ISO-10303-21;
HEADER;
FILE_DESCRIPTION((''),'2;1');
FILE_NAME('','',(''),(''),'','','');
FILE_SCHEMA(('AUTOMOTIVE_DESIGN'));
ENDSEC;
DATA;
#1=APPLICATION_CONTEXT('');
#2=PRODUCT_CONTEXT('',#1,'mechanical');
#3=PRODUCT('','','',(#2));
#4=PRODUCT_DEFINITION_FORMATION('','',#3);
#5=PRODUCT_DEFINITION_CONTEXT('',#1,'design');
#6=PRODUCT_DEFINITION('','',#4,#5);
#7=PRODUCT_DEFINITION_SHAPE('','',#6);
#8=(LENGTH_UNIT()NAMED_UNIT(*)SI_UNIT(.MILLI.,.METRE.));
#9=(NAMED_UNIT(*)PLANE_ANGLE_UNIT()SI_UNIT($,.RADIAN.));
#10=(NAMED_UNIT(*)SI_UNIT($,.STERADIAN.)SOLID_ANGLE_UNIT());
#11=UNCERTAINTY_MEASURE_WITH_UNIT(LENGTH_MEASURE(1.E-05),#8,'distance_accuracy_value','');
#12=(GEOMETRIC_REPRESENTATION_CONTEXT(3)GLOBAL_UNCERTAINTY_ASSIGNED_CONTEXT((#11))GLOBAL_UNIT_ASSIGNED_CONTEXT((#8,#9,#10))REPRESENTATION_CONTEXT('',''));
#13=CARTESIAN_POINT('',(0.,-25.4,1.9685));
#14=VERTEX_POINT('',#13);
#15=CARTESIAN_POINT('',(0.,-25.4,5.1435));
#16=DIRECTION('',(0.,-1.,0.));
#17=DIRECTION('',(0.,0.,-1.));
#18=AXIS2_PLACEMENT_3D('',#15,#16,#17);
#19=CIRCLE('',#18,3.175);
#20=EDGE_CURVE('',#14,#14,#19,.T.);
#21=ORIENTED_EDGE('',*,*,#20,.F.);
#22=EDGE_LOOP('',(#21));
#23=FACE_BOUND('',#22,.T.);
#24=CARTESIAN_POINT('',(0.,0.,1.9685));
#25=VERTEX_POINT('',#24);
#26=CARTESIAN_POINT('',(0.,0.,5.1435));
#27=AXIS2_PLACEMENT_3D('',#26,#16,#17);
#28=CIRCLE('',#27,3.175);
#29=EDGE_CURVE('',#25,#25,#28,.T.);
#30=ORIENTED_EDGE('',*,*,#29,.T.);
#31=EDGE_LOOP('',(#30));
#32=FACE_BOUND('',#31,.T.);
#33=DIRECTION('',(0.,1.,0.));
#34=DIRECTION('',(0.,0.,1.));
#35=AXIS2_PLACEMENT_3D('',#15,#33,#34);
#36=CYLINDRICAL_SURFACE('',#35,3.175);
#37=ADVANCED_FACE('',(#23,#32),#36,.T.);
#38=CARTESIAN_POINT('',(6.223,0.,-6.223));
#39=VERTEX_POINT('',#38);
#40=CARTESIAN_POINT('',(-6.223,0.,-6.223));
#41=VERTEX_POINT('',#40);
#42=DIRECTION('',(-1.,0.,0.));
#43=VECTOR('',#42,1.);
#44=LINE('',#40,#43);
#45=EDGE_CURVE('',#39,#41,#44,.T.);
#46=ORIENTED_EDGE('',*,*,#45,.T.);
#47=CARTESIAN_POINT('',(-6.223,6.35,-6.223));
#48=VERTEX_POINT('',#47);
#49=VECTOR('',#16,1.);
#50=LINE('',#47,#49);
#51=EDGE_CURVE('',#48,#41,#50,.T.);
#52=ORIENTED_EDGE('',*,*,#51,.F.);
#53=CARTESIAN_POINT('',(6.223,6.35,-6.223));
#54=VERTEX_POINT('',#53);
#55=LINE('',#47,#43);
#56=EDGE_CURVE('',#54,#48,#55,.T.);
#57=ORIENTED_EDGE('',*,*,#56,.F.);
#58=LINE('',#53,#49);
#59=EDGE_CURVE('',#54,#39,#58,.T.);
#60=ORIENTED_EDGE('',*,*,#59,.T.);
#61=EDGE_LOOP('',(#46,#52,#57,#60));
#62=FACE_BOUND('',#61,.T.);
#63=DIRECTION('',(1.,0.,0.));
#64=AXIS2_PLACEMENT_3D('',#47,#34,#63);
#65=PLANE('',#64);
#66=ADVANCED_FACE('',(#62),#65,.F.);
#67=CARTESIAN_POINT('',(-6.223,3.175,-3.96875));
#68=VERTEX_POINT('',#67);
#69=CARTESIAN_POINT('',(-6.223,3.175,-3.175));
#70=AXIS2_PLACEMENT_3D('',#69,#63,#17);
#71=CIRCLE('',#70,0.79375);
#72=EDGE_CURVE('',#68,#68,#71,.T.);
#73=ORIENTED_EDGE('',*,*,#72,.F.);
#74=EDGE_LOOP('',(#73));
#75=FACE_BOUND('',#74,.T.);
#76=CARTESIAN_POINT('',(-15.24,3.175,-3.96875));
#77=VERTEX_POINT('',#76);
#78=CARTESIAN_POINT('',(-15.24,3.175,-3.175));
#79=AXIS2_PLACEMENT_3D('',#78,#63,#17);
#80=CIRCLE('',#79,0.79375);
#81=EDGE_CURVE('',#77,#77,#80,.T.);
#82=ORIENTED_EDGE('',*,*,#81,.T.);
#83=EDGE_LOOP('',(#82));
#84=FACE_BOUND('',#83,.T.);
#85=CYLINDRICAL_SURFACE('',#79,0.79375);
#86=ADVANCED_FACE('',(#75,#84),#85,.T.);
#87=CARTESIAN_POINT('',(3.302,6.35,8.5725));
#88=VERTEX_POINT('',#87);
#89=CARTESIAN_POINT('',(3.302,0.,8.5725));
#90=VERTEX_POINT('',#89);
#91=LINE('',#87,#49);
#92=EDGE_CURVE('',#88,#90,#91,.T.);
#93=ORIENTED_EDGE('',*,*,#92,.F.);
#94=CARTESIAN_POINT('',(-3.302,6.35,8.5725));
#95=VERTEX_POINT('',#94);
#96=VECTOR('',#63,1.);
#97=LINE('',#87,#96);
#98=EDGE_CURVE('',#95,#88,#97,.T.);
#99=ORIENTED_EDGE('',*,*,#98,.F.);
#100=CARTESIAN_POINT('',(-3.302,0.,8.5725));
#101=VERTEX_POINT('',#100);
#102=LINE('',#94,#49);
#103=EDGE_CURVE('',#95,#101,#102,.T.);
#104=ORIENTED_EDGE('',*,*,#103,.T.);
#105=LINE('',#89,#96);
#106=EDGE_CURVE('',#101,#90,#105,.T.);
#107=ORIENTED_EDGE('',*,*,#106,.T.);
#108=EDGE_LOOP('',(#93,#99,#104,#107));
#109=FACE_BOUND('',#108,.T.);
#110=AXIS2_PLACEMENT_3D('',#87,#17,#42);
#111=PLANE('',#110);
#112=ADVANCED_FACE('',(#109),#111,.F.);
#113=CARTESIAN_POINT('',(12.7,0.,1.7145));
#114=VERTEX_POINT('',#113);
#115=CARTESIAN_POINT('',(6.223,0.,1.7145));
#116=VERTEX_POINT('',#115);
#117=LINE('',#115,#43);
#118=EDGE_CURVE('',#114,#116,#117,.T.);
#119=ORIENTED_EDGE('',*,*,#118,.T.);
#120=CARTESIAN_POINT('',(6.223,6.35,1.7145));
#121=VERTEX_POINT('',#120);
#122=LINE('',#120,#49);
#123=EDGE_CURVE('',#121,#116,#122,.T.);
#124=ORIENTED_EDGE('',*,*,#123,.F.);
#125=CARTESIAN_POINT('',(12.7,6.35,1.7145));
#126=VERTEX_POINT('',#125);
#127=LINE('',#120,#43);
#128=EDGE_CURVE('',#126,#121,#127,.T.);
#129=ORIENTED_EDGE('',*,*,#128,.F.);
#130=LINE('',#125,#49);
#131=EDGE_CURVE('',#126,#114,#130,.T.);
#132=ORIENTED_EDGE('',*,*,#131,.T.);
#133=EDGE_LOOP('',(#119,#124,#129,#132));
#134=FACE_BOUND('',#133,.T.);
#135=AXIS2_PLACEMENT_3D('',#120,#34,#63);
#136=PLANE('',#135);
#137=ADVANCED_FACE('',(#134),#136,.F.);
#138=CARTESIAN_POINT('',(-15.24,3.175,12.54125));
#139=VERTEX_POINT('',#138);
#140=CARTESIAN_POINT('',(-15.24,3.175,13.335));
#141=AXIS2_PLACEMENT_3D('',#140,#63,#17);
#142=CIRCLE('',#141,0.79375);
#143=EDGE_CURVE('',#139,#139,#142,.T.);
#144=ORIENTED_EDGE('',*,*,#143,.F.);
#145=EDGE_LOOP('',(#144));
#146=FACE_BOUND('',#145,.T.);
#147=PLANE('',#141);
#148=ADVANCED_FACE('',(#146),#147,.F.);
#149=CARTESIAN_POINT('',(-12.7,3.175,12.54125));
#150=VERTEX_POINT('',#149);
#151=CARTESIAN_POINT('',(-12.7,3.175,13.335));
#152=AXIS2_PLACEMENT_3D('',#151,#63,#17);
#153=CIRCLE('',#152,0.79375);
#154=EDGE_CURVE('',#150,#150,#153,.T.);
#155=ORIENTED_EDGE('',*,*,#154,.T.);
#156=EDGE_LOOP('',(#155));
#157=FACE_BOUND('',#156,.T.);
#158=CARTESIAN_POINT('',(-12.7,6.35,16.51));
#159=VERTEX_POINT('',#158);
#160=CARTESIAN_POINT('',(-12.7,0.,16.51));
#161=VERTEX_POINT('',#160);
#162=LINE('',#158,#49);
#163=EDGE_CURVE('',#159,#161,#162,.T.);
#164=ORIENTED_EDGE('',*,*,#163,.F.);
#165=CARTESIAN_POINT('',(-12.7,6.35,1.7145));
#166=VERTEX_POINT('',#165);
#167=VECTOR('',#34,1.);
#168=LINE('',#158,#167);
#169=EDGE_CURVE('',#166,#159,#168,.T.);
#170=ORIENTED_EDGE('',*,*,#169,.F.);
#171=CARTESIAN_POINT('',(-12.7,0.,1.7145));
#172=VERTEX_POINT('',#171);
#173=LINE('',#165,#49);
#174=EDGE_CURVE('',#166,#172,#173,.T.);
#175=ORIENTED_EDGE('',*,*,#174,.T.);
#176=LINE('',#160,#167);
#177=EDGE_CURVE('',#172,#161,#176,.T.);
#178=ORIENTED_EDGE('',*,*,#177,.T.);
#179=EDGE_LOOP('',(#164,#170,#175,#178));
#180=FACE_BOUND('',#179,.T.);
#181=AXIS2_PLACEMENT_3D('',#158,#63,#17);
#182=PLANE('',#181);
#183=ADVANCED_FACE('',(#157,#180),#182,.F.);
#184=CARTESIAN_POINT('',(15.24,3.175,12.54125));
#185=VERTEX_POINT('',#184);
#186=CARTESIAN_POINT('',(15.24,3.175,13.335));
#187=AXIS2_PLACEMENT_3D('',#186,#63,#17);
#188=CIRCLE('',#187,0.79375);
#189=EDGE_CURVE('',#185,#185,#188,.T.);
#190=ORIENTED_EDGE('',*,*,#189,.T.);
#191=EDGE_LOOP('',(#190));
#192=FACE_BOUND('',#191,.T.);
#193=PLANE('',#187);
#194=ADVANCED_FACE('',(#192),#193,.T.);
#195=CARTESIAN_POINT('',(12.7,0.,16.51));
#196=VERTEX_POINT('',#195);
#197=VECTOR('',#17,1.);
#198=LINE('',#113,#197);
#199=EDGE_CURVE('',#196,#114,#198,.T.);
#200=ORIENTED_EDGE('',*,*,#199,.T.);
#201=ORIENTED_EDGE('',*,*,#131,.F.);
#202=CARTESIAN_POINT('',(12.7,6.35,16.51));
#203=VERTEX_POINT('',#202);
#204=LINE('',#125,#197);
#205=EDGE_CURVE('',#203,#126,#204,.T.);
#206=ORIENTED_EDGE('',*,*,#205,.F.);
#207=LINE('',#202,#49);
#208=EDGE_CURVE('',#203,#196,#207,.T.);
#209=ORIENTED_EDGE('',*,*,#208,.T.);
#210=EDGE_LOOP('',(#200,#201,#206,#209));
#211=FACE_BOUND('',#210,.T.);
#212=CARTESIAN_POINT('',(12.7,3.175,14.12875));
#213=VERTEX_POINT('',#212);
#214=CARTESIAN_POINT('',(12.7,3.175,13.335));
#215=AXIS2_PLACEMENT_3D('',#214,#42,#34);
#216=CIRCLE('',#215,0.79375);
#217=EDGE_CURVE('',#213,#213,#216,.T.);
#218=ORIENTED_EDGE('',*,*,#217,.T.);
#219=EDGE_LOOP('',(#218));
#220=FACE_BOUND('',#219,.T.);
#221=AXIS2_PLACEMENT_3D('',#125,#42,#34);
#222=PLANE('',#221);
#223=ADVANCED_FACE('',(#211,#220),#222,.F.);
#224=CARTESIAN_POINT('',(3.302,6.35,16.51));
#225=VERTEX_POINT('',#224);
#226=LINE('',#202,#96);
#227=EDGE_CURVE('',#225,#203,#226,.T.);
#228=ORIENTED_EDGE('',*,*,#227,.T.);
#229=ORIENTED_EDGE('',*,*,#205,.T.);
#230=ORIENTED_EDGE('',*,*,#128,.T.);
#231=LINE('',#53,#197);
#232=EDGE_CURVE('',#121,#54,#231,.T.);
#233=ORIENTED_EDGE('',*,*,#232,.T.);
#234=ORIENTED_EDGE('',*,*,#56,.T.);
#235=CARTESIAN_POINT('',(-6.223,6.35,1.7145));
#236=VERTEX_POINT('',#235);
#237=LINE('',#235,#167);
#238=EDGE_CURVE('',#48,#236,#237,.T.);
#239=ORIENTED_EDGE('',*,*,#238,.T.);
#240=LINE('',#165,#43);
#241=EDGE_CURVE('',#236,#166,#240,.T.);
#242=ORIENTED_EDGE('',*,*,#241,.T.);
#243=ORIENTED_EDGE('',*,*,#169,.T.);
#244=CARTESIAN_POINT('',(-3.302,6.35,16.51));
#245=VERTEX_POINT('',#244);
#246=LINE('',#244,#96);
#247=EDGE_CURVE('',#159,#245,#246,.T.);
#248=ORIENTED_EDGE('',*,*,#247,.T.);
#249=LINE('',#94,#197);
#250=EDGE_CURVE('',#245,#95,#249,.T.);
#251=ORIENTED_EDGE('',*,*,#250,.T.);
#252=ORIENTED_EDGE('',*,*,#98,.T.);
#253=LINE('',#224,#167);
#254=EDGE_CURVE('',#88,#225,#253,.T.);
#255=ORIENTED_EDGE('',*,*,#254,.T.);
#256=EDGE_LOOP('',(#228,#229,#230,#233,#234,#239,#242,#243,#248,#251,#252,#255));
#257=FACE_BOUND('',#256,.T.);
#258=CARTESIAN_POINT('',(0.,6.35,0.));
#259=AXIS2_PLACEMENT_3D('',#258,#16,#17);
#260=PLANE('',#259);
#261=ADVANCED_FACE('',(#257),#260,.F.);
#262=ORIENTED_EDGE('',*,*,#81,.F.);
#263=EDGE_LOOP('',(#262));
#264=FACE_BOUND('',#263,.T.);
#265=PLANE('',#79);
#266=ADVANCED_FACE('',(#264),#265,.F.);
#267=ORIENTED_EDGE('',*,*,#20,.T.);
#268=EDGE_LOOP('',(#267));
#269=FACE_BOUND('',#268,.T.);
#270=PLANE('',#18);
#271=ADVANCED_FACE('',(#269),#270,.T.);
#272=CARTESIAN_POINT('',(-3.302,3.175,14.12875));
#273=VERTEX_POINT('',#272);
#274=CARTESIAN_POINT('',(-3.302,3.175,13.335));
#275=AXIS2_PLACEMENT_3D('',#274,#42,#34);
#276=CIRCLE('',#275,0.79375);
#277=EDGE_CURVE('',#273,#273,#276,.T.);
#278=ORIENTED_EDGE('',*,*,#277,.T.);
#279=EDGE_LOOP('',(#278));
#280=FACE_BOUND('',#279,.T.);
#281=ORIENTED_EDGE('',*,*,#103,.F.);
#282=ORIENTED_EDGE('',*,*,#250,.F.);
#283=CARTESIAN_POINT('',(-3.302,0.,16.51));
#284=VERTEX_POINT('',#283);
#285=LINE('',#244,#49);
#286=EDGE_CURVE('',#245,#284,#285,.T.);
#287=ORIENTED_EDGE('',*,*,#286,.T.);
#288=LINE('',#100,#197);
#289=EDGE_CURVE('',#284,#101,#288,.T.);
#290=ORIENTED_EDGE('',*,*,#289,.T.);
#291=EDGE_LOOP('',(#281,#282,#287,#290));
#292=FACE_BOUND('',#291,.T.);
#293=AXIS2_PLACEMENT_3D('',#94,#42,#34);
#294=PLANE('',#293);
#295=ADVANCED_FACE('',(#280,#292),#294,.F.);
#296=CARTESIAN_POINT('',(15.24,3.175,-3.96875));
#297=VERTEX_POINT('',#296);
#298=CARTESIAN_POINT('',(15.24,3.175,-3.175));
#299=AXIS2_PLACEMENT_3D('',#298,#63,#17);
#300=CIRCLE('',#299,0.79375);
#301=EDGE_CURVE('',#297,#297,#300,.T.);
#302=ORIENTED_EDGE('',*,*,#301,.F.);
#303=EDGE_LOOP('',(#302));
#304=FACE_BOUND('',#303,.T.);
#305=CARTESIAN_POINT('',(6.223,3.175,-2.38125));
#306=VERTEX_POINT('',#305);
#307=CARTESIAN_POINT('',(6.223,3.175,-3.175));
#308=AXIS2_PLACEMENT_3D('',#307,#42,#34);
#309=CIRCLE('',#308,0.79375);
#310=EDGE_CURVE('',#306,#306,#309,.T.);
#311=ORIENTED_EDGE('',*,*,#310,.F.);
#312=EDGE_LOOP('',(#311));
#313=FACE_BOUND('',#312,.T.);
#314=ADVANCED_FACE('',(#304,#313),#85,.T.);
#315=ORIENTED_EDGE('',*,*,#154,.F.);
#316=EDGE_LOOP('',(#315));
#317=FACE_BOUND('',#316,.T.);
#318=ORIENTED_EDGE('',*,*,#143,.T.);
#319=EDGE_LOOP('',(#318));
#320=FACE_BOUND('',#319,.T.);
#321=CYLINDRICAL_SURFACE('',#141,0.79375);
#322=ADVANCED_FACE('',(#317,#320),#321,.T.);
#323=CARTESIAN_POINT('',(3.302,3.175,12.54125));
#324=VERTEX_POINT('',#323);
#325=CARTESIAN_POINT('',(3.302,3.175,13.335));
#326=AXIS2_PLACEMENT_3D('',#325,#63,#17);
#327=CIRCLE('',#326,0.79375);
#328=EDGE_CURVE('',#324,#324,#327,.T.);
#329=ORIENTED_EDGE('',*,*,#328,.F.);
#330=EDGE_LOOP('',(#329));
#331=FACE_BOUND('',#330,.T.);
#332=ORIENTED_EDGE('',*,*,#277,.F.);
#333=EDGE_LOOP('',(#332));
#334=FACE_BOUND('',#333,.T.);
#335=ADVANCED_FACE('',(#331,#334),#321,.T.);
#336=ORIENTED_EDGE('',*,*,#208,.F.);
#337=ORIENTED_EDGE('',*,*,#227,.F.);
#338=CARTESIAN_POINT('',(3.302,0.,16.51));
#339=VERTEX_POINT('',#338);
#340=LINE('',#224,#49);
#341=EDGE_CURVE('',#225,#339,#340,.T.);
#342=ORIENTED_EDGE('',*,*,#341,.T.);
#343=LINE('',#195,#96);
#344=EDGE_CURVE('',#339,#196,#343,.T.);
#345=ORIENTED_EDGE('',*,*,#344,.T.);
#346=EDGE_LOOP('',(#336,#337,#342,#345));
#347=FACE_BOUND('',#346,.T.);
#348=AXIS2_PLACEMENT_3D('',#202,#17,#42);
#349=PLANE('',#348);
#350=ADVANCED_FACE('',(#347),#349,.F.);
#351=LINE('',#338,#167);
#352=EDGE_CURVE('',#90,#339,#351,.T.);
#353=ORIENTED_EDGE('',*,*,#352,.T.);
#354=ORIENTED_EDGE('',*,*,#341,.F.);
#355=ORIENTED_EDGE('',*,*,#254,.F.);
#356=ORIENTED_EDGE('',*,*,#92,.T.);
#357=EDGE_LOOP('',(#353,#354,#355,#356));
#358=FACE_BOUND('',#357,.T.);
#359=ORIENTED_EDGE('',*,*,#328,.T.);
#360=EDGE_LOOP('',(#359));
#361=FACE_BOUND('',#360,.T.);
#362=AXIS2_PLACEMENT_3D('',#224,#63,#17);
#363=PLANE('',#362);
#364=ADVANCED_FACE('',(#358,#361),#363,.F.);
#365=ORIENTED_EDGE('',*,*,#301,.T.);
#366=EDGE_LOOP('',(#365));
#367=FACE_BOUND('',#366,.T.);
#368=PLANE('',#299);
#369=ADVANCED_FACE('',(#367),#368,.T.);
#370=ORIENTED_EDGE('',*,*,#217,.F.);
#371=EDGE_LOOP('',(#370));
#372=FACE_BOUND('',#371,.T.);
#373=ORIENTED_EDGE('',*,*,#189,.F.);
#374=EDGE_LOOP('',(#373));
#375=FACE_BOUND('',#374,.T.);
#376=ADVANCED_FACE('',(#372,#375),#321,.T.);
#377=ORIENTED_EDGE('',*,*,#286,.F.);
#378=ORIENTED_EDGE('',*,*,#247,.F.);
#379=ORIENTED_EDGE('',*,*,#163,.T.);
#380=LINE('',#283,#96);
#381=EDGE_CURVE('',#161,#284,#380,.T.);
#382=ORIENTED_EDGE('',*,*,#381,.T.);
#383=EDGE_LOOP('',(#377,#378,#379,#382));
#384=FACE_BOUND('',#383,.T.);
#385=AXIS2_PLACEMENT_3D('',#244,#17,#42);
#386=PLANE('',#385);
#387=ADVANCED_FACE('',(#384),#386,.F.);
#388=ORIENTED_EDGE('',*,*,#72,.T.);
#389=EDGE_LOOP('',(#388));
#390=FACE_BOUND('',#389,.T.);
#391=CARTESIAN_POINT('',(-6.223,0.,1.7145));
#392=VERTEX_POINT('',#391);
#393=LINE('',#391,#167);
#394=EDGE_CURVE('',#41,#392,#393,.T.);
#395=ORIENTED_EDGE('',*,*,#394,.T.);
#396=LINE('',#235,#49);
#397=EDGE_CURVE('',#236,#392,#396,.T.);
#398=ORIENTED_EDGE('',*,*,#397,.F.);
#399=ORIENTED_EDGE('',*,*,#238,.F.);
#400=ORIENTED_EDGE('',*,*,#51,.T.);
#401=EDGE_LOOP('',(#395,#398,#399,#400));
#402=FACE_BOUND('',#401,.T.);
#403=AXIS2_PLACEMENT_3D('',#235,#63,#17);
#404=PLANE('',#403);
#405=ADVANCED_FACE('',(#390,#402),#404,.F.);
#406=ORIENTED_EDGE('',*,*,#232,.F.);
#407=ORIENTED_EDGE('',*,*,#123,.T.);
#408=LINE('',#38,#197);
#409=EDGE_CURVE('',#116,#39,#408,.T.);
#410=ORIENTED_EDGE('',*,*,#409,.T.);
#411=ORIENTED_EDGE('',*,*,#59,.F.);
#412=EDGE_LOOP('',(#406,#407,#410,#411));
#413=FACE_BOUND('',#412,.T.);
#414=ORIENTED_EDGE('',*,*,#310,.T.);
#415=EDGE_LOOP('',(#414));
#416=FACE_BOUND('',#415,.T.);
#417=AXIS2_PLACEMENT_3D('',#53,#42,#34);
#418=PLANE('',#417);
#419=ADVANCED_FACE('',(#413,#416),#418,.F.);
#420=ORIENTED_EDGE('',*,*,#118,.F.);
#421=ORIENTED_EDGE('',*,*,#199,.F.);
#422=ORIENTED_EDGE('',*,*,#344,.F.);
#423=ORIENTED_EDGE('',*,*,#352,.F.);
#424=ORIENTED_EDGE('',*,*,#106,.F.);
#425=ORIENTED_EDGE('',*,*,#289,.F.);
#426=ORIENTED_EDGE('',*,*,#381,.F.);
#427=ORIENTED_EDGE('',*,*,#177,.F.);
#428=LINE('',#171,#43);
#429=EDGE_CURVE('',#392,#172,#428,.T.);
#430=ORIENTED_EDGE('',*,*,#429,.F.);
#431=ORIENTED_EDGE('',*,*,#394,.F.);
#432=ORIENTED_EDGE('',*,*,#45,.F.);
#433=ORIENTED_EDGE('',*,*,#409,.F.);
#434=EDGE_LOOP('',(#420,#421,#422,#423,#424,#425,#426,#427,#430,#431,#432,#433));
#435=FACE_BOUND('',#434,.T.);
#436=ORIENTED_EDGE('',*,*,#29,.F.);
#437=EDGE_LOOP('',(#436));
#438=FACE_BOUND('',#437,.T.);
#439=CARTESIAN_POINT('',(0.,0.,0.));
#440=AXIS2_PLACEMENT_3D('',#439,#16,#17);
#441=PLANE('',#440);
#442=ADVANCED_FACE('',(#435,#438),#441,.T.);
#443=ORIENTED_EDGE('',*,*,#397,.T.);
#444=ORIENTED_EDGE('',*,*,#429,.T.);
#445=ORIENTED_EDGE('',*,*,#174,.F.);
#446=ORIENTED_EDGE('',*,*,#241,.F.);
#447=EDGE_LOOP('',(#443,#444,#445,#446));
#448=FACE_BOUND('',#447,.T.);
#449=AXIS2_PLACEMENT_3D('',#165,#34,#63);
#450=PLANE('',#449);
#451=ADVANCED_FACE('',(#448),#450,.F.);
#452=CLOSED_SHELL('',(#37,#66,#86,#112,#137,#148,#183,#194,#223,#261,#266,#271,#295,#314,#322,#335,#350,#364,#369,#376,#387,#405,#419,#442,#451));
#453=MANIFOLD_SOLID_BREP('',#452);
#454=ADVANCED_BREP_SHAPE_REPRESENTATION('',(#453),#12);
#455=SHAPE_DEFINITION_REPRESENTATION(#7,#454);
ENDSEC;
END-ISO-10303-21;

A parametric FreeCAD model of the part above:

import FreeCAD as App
import Part
import Sketcher
Q = App.Units.Quantity

doc = App.newDocument("Part")
params = doc.addObject("Spreadsheet::Sheet", "Params")
for row, (alias, value) in enumerate([
    ("sketch1_width", "0.49 in"),
    ("sketch1_width2", "0.37 in"),
    ("sketch1_width3", "0.26 in"),
    ("sketch1_height", "0.3125 in"),
    ("pad1_length", "0.25 in"),
    ("sketch2_diameter", "0.0625 in"),
    ("pad2_length", "0.1 in"),
    ("pad2_length2", "1.1 in"),
    ("sketch3_diameter", "0.25 in"),
    ("pad3_length", "1 in"),
], start=1):
    params.set(f"A{row}", alias)
    params.set(f"B{row}", "=" + value)
    params.setAlias(f"B{row}", alias)

body = doc.addObject("PartDesign::Body", "Body")

sketch1 = body.newObject("Sketcher::SketchObject", "Sketch")
sketch1.AttachmentSupport = (doc.getObject("XZ_Plane"), [""])
sketch1.MapMode = "FlatFace"
sketch1.addGeometry([
    Part.LineSegment(App.Vector(6, -6, 0), App.Vector(-6, -6, 0)),
    Part.LineSegment(App.Vector(-6, -6, 0), App.Vector(-6, 2, 0)),
    Part.LineSegment(App.Vector(-6, 2, 0), App.Vector(-13, 2, 0)),
    Part.LineSegment(App.Vector(-13, 2, 0), App.Vector(-13, 17, 0)),
    Part.LineSegment(App.Vector(-13, 17, 0), App.Vector(-3, 17, 0)),
    Part.LineSegment(App.Vector(-3, 17, 0), App.Vector(-3, 9, 0)),
    Part.LineSegment(App.Vector(-3, 9, 0), App.Vector(3, 9, 0)),
    Part.LineSegment(App.Vector(3, 9, 0), App.Vector(3, 17, 0)),
    Part.LineSegment(App.Vector(3, 17, 0), App.Vector(13, 17, 0)),
    Part.LineSegment(App.Vector(13, 17, 0), App.Vector(13, 2, 0)),
    Part.LineSegment(App.Vector(13, 2, 0), App.Vector(6, 2, 0)),
    Part.LineSegment(App.Vector(6, 2, 0), App.Vector(6, -6, 0)),
], False)
sketch1.addConstraint([
    Sketcher.Constraint("Coincident", 0, 2, 1, 1),
    Sketcher.Constraint("Coincident", 1, 2, 2, 1),
    Sketcher.Constraint("Coincident", 2, 2, 3, 1),
    Sketcher.Constraint("Coincident", 3, 2, 4, 1),
    Sketcher.Constraint("Coincident", 4, 2, 5, 1),
    Sketcher.Constraint("Coincident", 5, 2, 6, 1),
    Sketcher.Constraint("Coincident", 6, 2, 7, 1),
    Sketcher.Constraint("Coincident", 7, 2, 8, 1),
    Sketcher.Constraint("Coincident", 8, 2, 9, 1),
    Sketcher.Constraint("Coincident", 9, 2, 10, 1),
    Sketcher.Constraint("Coincident", 10, 2, 11, 1),
    Sketcher.Constraint("Coincident", 11, 2, 0, 1),
    Sketcher.Constraint("Horizontal", 0),
    Sketcher.Constraint("Vertical", 1),
    Sketcher.Constraint("Horizontal", 2),
    Sketcher.Constraint("Vertical", 3),
    Sketcher.Constraint("Horizontal", 4),
    Sketcher.Constraint("Vertical", 5),
    Sketcher.Constraint("Horizontal", 6),
    Sketcher.Constraint("Vertical", 7),
    Sketcher.Constraint("Horizontal", 8),
    Sketcher.Constraint("Vertical", 9),
    Sketcher.Constraint("Horizontal", 10),
    Sketcher.Constraint("Vertical", 11),
    Sketcher.Constraint("Symmetric", 4, 2, 7, 2, -2),
    Sketcher.Constraint("Symmetric", 2, 2, 9, 2, -2),
    Sketcher.Constraint("Equal", 2, 10),
    Sketcher.Constraint("Equal", 1, 5),
    Sketcher.Constraint("DistanceX", 0, 2, 0, 1, Q("0.49 in")),
    Sketcher.Constraint("DistanceX", 4, 1, 4, 2, Q("0.37 in")),
    Sketcher.Constraint("DistanceX", 6, 1, 6, 2, Q("0.26 in")),
    Sketcher.Constraint("DistanceY", 1, 1, 1, 2, Q("0.3125 in")),
    Sketcher.Constraint("DistanceY", -1, 1, 3, 2, Q("0.65 in")),
    Sketcher.Constraint("DistanceY", 1, 2, 5, 2, Q("0.27 in")),
])
sketch1.setExpression("Constraints[28]", "Params.sketch1_width")
sketch1.setExpression("Constraints[29]", "Params.sketch1_width2")
sketch1.setExpression("Constraints[30]", "Params.sketch1_width3")
sketch1.setExpression("Constraints[31]", "Params.sketch1_height")
pad1 = body.newObject("PartDesign::Pad", "Pad")
pad1.Profile = sketch1
pad1.setExpression("Length", "Params.pad1_length")
pad1.Reversed = True

sketch2 = body.newObject("Sketcher::SketchObject", "Sketch001")
sketch2.AttachmentSupport = (doc.getObject("YZ_Plane"), [""])
sketch2.MapMode = "FlatFace"
sketch2.AttachmentOffset = App.Placement(App.Vector(0, 0, 0.5 * 25.4), App.Rotation())
sketch2.addGeometry([
    Part.Circle(App.Vector(3.2, 13.3, 0), App.Vector(0, 0, 1), 0.8),
    Part.Circle(App.Vector(3.2, -3.2, 0), App.Vector(0, 0, 1), 0.8),
], False)
sketch2.addConstraint([
    Sketcher.Constraint("Equal", 0, 1),
    Sketcher.Constraint("Vertical", 0, 3, 1, 3),
    Sketcher.Constraint("Diameter", 0, Q("0.0625 in")),
    Sketcher.Constraint("DistanceY", 1, 3, 0, 3, Q("0.65 in")),
    Sketcher.Constraint("DistanceX", -1, 1, 0, 3, Q("0.125 in")),
    Sketcher.Constraint("DistanceY", -1, 1, 0, 3, Q("0.525 in")),
])
sketch2.setExpression("Constraints[2]", "Params.sketch2_diameter")
pad2 = body.newObject("PartDesign::Pad", "Pad001")
pad2.Profile = sketch2
pad2.Type = "TwoLengths"
pad2.setExpression("Length", "Params.pad2_length")
pad2.setExpression("Length2", "Params.pad2_length2")

sketch3 = body.newObject("Sketcher::SketchObject", "Sketch002")
sketch3.AttachmentSupport = (doc.getObject("XZ_Plane"), [""])
sketch3.MapMode = "FlatFace"
sketch3.addGeometry(Part.Circle(App.Vector(0, 5.1, 0), App.Vector(0, 0, 1), 3.2), False)
sketch3.addConstraint([
    Sketcher.Constraint("PointOnObject", 0, 3, -2),
    Sketcher.Constraint("Diameter", 0, Q("0.25 in")),
    Sketcher.Constraint("DistanceY", -1, 1, 0, 3, Q("0.2025 in")),
])
sketch3.setExpression("Constraints[1]", "Params.sketch3_diameter")
pad3 = body.newObject("PartDesign::Pad", "Pad002")
pad3.Profile = sketch3
pad3.setExpression("Length", "Params.pad3_length")

doc.recompute()
